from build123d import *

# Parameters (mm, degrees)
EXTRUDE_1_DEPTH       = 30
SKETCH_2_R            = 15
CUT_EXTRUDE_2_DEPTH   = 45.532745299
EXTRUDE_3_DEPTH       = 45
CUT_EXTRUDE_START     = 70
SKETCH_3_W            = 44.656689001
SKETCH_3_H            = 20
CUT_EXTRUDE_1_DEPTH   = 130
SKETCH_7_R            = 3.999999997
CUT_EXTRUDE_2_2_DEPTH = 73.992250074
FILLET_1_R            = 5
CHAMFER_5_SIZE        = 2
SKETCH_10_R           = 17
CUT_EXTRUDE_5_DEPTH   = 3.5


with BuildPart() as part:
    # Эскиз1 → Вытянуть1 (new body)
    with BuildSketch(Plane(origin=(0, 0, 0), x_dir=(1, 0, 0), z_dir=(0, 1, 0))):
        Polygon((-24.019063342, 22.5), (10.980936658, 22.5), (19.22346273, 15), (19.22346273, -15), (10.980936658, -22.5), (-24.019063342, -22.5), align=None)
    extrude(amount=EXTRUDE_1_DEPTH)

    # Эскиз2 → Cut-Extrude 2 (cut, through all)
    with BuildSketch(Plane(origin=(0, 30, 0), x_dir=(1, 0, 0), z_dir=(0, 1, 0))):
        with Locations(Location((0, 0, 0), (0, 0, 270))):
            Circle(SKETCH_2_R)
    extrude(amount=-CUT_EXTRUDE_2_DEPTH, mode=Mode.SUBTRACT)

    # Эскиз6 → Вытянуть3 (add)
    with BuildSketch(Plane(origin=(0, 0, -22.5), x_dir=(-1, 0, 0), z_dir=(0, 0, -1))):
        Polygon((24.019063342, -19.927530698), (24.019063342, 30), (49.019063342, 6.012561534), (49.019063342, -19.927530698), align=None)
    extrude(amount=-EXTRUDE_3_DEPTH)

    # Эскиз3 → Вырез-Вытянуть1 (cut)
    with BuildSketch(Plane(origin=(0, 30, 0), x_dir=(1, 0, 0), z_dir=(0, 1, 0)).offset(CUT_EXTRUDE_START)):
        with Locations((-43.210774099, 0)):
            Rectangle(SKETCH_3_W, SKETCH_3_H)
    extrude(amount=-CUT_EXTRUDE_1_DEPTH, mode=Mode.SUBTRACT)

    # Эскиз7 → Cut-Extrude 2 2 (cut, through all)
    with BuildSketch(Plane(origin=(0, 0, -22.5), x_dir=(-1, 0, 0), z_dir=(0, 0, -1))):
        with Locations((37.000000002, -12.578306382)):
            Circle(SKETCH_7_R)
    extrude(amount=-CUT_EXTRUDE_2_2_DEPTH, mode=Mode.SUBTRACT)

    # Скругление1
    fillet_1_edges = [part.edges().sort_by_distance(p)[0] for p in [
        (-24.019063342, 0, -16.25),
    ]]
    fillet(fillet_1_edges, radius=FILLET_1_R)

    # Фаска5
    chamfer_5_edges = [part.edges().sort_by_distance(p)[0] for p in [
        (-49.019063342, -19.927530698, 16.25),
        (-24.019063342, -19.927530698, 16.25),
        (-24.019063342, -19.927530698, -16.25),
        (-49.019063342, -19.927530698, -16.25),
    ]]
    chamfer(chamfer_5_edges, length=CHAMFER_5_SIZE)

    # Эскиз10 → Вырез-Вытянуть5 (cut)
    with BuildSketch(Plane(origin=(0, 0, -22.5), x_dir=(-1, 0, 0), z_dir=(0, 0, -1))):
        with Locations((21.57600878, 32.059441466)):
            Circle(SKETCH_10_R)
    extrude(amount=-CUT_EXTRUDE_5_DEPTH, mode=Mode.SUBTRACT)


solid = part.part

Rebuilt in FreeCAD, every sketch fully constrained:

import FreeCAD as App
import Part
import Sketcher


def edges_at(feature, points):
    """Names of the edges that pass closest to the given points."""
    edges = feature.Shape.Edges
    near = lambda p: min(range(len(edges)), key=lambda i: edges[i].distToShape(Part.Vertex(*p))[0])
    return sorted({f"Edge{near(p) + 1}" for p in points})

doc = App.newDocument("Part")
body = doc.addObject("PartDesign::Body", "Body")

sketch1 = body.newObject("Sketcher::SketchObject", "Sketch")
sketch1.AttachmentSupport = (doc.getObject("XZ_Plane"), [""])
sketch1.MapMode = "FlatFace"
sketch1.addGeometry(Part.LineSegment(App.Vector(11, -22, 0), App.Vector(-24, -22, 0)), False)
sketch1.addGeometry(Part.LineSegment(App.Vector(-24, -22, 0), App.Vector(-24, 22, 0)), False)
sketch1.addGeometry(Part.LineSegment(App.Vector(-24, 22, 0), App.Vector(11, 22, 0)), False)
sketch1.addGeometry(Part.LineSegment(App.Vector(11, 22, 0), App.Vector(19, 15, 0)), False)
sketch1.addGeometry(Part.LineSegment(App.Vector(19, 15, 0), App.Vector(19, -15, 0)), False)
sketch1.addGeometry(Part.LineSegment(App.Vector(19, -15, 0), App.Vector(11, -22, 0)), False)
sketch1.addConstraint(Sketcher.Constraint("Coincident", 0, 2, 1, 1))
sketch1.addConstraint(Sketcher.Constraint("Coincident", 1, 2, 2, 1))
sketch1.addConstraint(Sketcher.Constraint("Coincident", 2, 2, 3, 1))
sketch1.addConstraint(Sketcher.Constraint("Coincident", 3, 2, 4, 1))
sketch1.addConstraint(Sketcher.Constraint("Coincident", 4, 2, 5, 1))
sketch1.addConstraint(Sketcher.Constraint("Coincident", 5, 2, 0, 1))
sketch1.addConstraint(Sketcher.Constraint("Horizontal", 0))
sketch1.addConstraint(Sketcher.Constraint("Vertical", 1))
sketch1.addConstraint(Sketcher.Constraint("Horizontal", 2))
sketch1.addConstraint(Sketcher.Constraint("Vertical", 4))
sketch1.addConstraint(Sketcher.Constraint("Symmetric", 2, 2, 5, 2, -1))
sketch1.addConstraint(Sketcher.Constraint("Equal", 3, 5))
sketch1.addConstraint(Sketcher.Constraint("DistanceX", 0, 2, 0, 1, 35.0))
sketch1.addConstraint(Sketcher.Constraint("DistanceY", 1, 1, 1, 2, 45.0))
sketch1.addConstraint(Sketcher.Constraint("DistanceY", 4, 2, 4, 1, 30.0))
sketch1.addConstraint(Sketcher.Constraint("Distance", 3, 11.144022))
sketch1.addConstraint(Sketcher.Constraint("DistanceX", 0, 2, -1, 1, 24.019063))
pad1 = body.newObject("PartDesign::Pad", "Pad")
pad1.Profile = sketch1
pad1.Length = 30
pad1.Reversed = True

sketch2 = body.newObject("Sketcher::SketchObject", "Sketch001")
sketch2.AttachmentSupport = (doc.getObject("XZ_Plane"), [""])
sketch2.MapMode = "FlatFace"
sketch2.AttachmentOffset = App.Placement(App.Vector(0, 0, -30), App.Rotation())
sketch2.addGeometry(Part.Circle(App.Vector(0, 0, 0), App.Vector(0, 0, 1), 15), False)
sketch2.addConstraint(Sketcher.Constraint("Coincident", 0, 3, -1, 1))
sketch2.addConstraint(Sketcher.Constraint("Diameter", 0, 30.0))
pocket1 = body.newObject("PartDesign::Pocket", "Pocket")
pocket1.Profile = sketch2
pocket1.Type = "ThroughAll"
pocket1.Reversed = True

sketch3 = body.newObject("Sketcher::SketchObject", "Sketch002")
sketch3.AttachmentSupport = (doc.getObject("XY_Plane"), [""])
sketch3.MapMode = "FlatFace"
sketch3.AttachmentOffset = App.Placement(App.Vector(0, 0, -22.5), App.Rotation())
sketch3.addGeometry(Part.LineSegment(App.Vector(-24, 30, 0), App.Vector(-24, -20, 0)), False)
sketch3.addGeometry(Part.LineSegment(App.Vector(-24, -20, 0), App.Vector(-49, -20, 0)), False)
sketch3.addGeometry(Part.LineSegment(App.Vector(-49, -20, 0), App.Vector(-49, 6, 0)), False)
sketch3.addGeometry(Part.LineSegment(App.Vector(-49, 6, 0), App.Vector(-24, 30, 0)), False)
sketch3.addConstraint(Sketcher.Constraint("Coincident", 0, 2, 1, 1))
sketch3.addConstraint(Sketcher.Constraint("Coincident", 1, 2, 2, 1))
sketch3.addConstraint(Sketcher.Constraint("Coincident", 2, 2, 3, 1))
sketch3.addConstraint(Sketcher.Constraint("Coincident", 3, 2, 0, 1))
sketch3.addConstraint(Sketcher.Constraint("Vertical", 0))
sketch3.addConstraint(Sketcher.Constraint("Horizontal", 1))
sketch3.addConstraint(Sketcher.Constraint("Vertical", 2))
sketch3.addConstraint(Sketcher.Constraint("DistanceX", 1, 2, 1, 1, 25.0))
sketch3.addConstraint(Sketcher.Constraint("DistanceY", -1, 1, 3, 2, 30.0))
sketch3.addConstraint(Sketcher.Constraint("DistanceY", 0, 2, 0, 1, 49.927531))
sketch3.addConstraint(Sketcher.Constraint("Distance", 3, 34.646749))
sketch3.addConstraint(Sketcher.Constraint("DistanceX", 0, 2, -1, 1, 24.019063))
pad2 = body.newObject("PartDesign::Pad", "Pad001")
pad2.Profile = sketch3
pad2.Length = 45

sketch4 = body.newObject("Sketcher::SketchObject", "Sketch003")
sketch4.AttachmentSupport = (doc.getObject("XZ_Plane"), [""])
sketch4.MapMode = "FlatFace"
sketch4.AttachmentOffset = App.Placement(App.Vector(0, 0, -100), App.Rotation())
sketch4.addGeometry(Part.LineSegment(App.Vector(-66, -10, 0), App.Vector(-66, 10, 0)), False)
sketch4.addGeometry(Part.LineSegment(App.Vector(-66, 10, 0), App.Vector(-21, 10, 0)), False)
sketch4.addGeometry(Part.LineSegment(App.Vector(-21, 10, 0), App.Vector(-21, -10, 0)), False)
sketch4.addGeometry(Part.LineSegment(App.Vector(-21, -10, 0), App.Vector(-66, -10, 0)), False)
sketch4.addConstraint(Sketcher.Constraint("Coincident", 0, 2, 1, 1))
sketch4.addConstraint(Sketcher.Constraint("Coincident", 1, 2, 2, 1))
sketch4.addConstraint(Sketcher.Constraint("Coincident", 2, 2, 3, 1))
sketch4.addConstraint(Sketcher.Constraint("Coincident", 3, 2, 0, 1))
sketch4.addConstraint(Sketcher.Constraint("Vertical", 0))
sketch4.addConstraint(Sketcher.Constraint("Horizontal", 1))
sketch4.addConstraint(Sketcher.Constraint("Vertical", 2))
sketch4.addConstraint(Sketcher.Constraint("Horizontal", 3))
sketch4.addConstraint(Sketcher.Constraint("DistanceY", 0, 1, 0, 2, 20.0))
sketch4.addConstraint(Sketcher.Constraint("DistanceY", -1, 1, 0, 2, 10.0))
sketch4.addConstraint(Sketcher.Constraint("DistanceX", 1, 1, 1, 2, 44.656689))
sketch4.addConstraint(Sketcher.Constraint("DistanceX", 0, 2, -1, 1, 65.539119))
pocket2 = body.newObject("PartDesign::Pocket", "Pocket001")
pocket2.Profile = sketch4
pocket2.Length = 130
pocket2.Reversed = True

sketch5 = body.newObject("Sketcher::SketchObject", "Sketch004")
sketch5.AttachmentSupport = (doc.getObject("XY_Plane"), [""])
sketch5.MapMode = "FlatFace"
sketch5.AttachmentOffset = App.Placement(App.Vector(0, 0, -22.5), App.Rotation())
sketch5.addGeometry(Part.Circle(App.Vector(-37, -12.6, 0), App.Vector(0, 0, 1), 4), False)
sketch5.addConstraint(Sketcher.Constraint("Diameter", 0, 8.0))
sketch5.addConstraint(Sketcher.Constraint("DistanceX", 0, 3, -1, 1, 37.0))
sketch5.addConstraint(Sketcher.Constraint("DistanceY", 0, 3, -1, 1, 12.578306))
pocket3 = body.newObject("PartDesign::Pocket", "Pocket002")
pocket3.Profile = sketch5
pocket3.Type = "ThroughAll"
pocket3.Reversed = True
doc.recompute()

fillet = body.newObject("PartDesign::Fillet", "Fillet")
fillet.Base = (pocket3, edges_at(pocket3, [(-24.019, 0, -16.25)]))
fillet.Radius = 5
doc.recompute()

chamfer = body.newObject("PartDesign::Chamfer", "Chamfer")
chamfer.Base = (fillet, edges_at(fillet, [
    (-49.019, -19.928, 16.25),
    (-24.019, -19.928, 16.25),
    (-24.019, -19.928, -16.25),
    (-49.019, -19.928, -16.25),
]))
chamfer.Size = 2

sketch6 = body.newObject("Sketcher::SketchObject", "Sketch005")
sketch6.AttachmentSupport = (doc.getObject("XY_Plane"), [""])
sketch6.MapMode = "FlatFace"
sketch6.AttachmentOffset = App.Placement(App.Vector(0, 0, -22.5), App.Rotation())
sketch6.addGeometry(Part.Circle(App.Vector(-22, 32, 0), App.Vector(0, 0, 1), 17), False)
sketch6.addConstraint(Sketcher.Constraint("Diameter", 0, 34.0))
sketch6.addConstraint(Sketcher.Constraint("DistanceX", 0, 3, -1, 1, 21.576009))
sketch6.addConstraint(Sketcher.Constraint("DistanceY", -1, 1, 0, 3, 32.059441))
pocket4 = body.newObject("PartDesign::Pocket", "Pocket003")
pocket4.Profile = sketch6
pocket4.Length = 3.5
pocket4.Reversed = True

doc.recompute()
